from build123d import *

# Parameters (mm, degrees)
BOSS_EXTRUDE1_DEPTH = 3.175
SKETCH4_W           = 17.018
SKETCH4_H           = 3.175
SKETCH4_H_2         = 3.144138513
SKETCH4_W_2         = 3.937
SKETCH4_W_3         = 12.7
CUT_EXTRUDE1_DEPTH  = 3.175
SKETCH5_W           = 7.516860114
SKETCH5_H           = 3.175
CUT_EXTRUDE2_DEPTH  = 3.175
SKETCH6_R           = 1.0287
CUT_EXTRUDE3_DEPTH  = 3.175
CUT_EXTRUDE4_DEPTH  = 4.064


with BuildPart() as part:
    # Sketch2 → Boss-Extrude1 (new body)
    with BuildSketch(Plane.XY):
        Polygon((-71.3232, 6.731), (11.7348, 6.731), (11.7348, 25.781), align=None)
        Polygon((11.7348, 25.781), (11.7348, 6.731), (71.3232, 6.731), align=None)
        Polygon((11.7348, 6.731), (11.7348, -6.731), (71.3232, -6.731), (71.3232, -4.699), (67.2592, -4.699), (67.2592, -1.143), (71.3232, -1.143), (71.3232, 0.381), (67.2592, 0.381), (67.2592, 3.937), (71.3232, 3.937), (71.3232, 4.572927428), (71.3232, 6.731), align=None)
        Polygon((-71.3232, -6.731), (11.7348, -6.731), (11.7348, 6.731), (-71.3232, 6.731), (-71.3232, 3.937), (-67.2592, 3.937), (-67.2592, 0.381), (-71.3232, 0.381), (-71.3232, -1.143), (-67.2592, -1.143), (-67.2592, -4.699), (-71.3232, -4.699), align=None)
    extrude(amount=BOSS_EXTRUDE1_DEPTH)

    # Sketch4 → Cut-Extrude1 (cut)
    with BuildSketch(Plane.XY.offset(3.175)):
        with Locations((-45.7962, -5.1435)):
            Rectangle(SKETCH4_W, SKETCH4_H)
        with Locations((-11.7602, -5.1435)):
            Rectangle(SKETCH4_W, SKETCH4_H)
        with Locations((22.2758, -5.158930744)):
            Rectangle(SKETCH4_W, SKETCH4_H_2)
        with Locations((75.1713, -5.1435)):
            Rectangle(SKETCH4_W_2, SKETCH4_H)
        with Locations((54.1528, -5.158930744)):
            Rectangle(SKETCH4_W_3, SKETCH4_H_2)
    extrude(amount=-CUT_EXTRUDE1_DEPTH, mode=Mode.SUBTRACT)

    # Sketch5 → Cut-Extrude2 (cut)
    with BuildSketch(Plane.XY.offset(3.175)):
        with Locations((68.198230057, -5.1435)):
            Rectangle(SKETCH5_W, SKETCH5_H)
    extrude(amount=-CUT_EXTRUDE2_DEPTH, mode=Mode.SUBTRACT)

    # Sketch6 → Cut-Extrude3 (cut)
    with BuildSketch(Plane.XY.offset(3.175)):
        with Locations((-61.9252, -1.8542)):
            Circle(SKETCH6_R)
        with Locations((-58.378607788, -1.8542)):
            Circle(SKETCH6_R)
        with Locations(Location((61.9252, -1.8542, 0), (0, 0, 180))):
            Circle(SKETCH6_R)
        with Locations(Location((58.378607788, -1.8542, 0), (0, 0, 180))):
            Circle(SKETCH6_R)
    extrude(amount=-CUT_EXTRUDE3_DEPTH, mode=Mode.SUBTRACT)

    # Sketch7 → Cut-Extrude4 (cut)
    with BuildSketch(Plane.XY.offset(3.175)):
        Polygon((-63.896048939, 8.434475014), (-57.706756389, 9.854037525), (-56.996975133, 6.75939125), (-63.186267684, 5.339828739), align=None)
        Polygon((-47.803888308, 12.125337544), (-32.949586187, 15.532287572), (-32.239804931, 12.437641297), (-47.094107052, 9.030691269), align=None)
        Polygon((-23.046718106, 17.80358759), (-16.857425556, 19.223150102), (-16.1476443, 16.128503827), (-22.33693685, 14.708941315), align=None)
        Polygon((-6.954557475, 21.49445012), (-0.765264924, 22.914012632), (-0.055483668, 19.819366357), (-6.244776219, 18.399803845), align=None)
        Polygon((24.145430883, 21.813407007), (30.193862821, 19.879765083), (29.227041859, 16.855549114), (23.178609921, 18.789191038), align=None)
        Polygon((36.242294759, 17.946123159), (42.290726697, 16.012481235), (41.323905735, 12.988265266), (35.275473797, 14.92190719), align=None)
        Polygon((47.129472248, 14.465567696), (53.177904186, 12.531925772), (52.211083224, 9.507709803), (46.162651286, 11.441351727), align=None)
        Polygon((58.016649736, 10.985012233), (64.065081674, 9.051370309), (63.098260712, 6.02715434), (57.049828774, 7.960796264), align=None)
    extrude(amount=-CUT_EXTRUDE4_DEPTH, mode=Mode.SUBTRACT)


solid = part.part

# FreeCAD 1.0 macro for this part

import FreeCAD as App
import Part
import Sketcher
from FreeCAD import Vector
Q = App.Units.Quantity


def add_polygon(sketch, points):
    """Adds a closed chain of lines whose ends are joined by coincident constraints."""
    first, n = sketch.GeometryCount, len(points)
    for a, b in zip(points, points[1:] + points[:1]):
        sketch.addGeometry(Part.LineSegment(App.Vector(*a, 0), App.Vector(*b, 0)), False)
    for i in range(n):
        sketch.addConstraint(Sketcher.Constraint("Coincident", first + i, 2, first + (i + 1) % n, 1))

doc = App.newDocument("Part")
body = doc.addObject("PartDesign::Body", "Body")

sketch1 = body.newObject("Sketcher::SketchObject", "Sketch")
sketch1.AttachmentSupport = (doc.getObject("XY_Plane"), [""])
sketch1.MapMode = "FlatFace"
add_polygon(sketch1, [(71.3232, -6.731), (71.3232, -4.699), (67.2592, -4.699), (67.2592, -1.143), (71.3232, -1.143), (71.3232, 0.381), (67.2592, 0.381), (67.2592, 3.937), (71.3232, 3.937), (71.3232, 6.731), (11.7348, 25.781), (-71.3232, 6.731), (-71.3232, 3.937), (-67.2592, 3.937), (-67.2592, 0.381), (-71.3232, 0.381), (-71.3232, -1.143), (-67.2592, -1.143), (-67.2592, -4.699), (-71.3232, -4.699), (-71.3232, -6.731)])
sketch1.addConstraint([
    Sketcher.Constraint("Vertical", 0),
    Sketcher.Constraint("Horizontal", 1),
    Sketcher.Constraint("Vertical", 2),
    Sketcher.Constraint("Horizontal", 3),
    Sketcher.Constraint("Vertical", 4),
    Sketcher.Constraint("Horizontal", 5),
    Sketcher.Constraint("Vertical", 6),
    Sketcher.Constraint("Horizontal", 7),
    Sketcher.Constraint("Vertical", 8),
    Sketcher.Constraint("Vertical", 11),
    Sketcher.Constraint("Horizontal", 12),
    Sketcher.Constraint("Vertical", 13),
    Sketcher.Constraint("Horizontal", 14),
    Sketcher.Constraint("Vertical", 15),
    Sketcher.Constraint("Horizontal", 16),
    Sketcher.Constraint("Vertical", 17),
    Sketcher.Constraint("Horizontal", 18),
    Sketcher.Constraint("Vertical", 19),
    Sketcher.Constraint("Horizontal", 20),
    Sketcher.Constraint("Symmetric", 8, 2, 19, 2, -1, 1),
    Sketcher.Constraint("Symmetric", 10, 2, 20, 2, -1, 1),
    Sketcher.Constraint("Symmetric", 7, 2, 11, 2, -2),
    Sketcher.Constraint("Symmetric", 5, 2, 13, 2, -2),
    Sketcher.Constraint("Symmetric", 3, 2, 15, 2, -2),
    Sketcher.Constraint("Symmetric", 1, 2, 17, 2, -2),
    Sketcher.Constraint("Vertical", 0, 2, 3, 2),
    Sketcher.Constraint("Vertical", 2, 2, 5, 2),
    Sketcher.Constraint("Equal", 2, 6),
    Sketcher.Constraint("DistanceY", 5, 2, 9, 2, Q("1 in")),
    Sketcher.Constraint("DistanceX", 1, 2, 1, 1, Q("0.16 in")),
    Sketcher.Constraint("DistanceY", 0, 1, 0, 2, Q("0.08 in")),
    Sketcher.Constraint("DistanceY", 2, 1, 2, 2, Q("0.14 in")),
    Sketcher.Constraint("DistanceY", 4, 1, 4, 2, Q("0.06 in")),
    Sketcher.Constraint("DistanceY", 8, 1, 8, 2, Q("0.11 in")),
    Sketcher.Constraint("DistanceX", 20, 1, 20, 2, Q("5.616 in")),
    Sketcher.Constraint("DistanceX", 10, 2, 9, 2, Q("3.27 in")),
])
pad1 = body.newObject("PartDesign::Pad", "Pad")
pad1.Profile = sketch1
pad1.Length = Q("0.125 in")

sketch2 = body.newObject("Sketcher::SketchObject", "Sketch001")
sketch2.AttachmentSupport = (doc.getObject("XY_Plane"), [""])
sketch2.MapMode = "FlatFace"
sketch2.AttachmentOffset = App.Placement(Vector(0, 0, 0.125 * 25.4), App.Rotation())
add_polygon(sketch2, [(-54.3052, -3.556), (-54.3052, -6.731), (-37.2872, -6.731), (-37.2872, -3.556)])
add_polygon(sketch2, [(-20.2692, -3.556), (-20.2692, -6.731), (-3.2512, -6.731), (-3.2512, -3.556)])
add_polygon(sketch2, [(13.7668, -3.586861), (13.7668, -6.731), (30.7848, -6.731), (30.7848, -3.586861)])
add_polygon(sketch2, [(73.2028, -3.556), (73.2028, -6.731), (77.1398, -6.731), (77.1398, -3.556)])
add_polygon(sketch2, [(47.8028, -3.586861), (47.8028, -6.731), (60.5028, -6.731), (60.5028, -3.586861)])
sketch2.addConstraint([
    Sketcher.Constraint("Vertical", 0),
    Sketcher.Constraint("Horizontal", 1),
    Sketcher.Constraint("Vertical", 2),
    Sketcher.Constraint("Horizontal", 3),
    Sketcher.Constraint("Vertical", 4),
    Sketcher.Constraint("Horizontal", 5),
    Sketcher.Constraint("Vertical", 6),
    Sketcher.Constraint("Horizontal", 7),
    Sketcher.Constraint("Vertical", 8),
    Sketcher.Constraint("Horizontal", 9),
    Sketcher.Constraint("Vertical", 10),
    Sketcher.Constraint("Horizontal", 11),
    Sketcher.Constraint("Vertical", 12),
    Sketcher.Constraint("Horizontal", 13),
    Sketcher.Constraint("Vertical", 14),
    Sketcher.Constraint("Horizontal", 15),
    Sketcher.Constraint("Vertical", 16),
    Sketcher.Constraint("Horizontal", 17),
    Sketcher.Constraint("Vertical", 18),
    Sketcher.Constraint("Horizontal", 19),
    Sketcher.Constraint("Horizontal", 1, 2, 4, 2),
    Sketcher.Constraint("Horizontal", 3, 2, 6, 2),
    Sketcher.Constraint("Horizontal", 5, 2, 8, 2),
    Sketcher.Constraint("Horizontal", 9, 2, 12, 2),
    Sketcher.Constraint("Horizontal", 7, 2, 14, 2),
    Sketcher.Constraint("Horizontal", 13, 2, 16, 2),
    Sketcher.Constraint("Horizontal", 11, 2, 18, 2),
    Sketcher.Constraint("Equal", 3, 5),
    Sketcher.Constraint("Equal", 7, 9),
    Sketcher.Constraint("DistanceX", 17, 1, 17, 2, Q("0.5 in")),
    Sketcher.Constraint("DistanceX", 16, 2, 12, 2, Q("1 in")),
    Sketcher.Constraint("DistanceX", 1, 1, 1, 2, Q("0.67 in")),
    Sketcher.Constraint("DistanceX", 13, 1, 13, 2, Q("0.155 in")),
    Sketcher.Constraint("DistanceY", 0, 2, 0, 1, Q("0.125 in")),
    Sketcher.Constraint("DistanceY", 2, 2, -1, 1, Q("0.14 in")),
    Sketcher.Constraint("DistanceX", 1, 2, 4, 2, Q("0.67 in")),
    Sketcher.Constraint("DistanceX", 5, 2, 8, 2, Q("0.67 in")),
    Sketcher.Constraint("DistanceX", 9, 2, 12, 2, Q("1.67 in")),
    Sketcher.Constraint("DistanceX", 0, 2, -1, 1, Q("2.138 in")),
    Sketcher.Constraint("DistanceY", 8, 2, 8, 1, 3.144139),
])
pocket1 = body.newObject("PartDesign::Pocket", "Pocket")
pocket1.Profile = sketch2
pocket1.Length = Q("0.125 in")

sketch3 = body.newObject("Sketcher::SketchObject", "Sketch002")
sketch3.AttachmentSupport = (doc.getObject("XY_Plane"), [""])
sketch3.MapMode = "FlatFace"
sketch3.AttachmentOffset = App.Placement(Vector(0, 0, 0.125 * 25.4), App.Rotation())
add_polygon(sketch3, [(64.4398, -3.556), (64.4398, -6.731), (71.95666, -6.731), (71.95666, -3.556)])
sketch3.addConstraint([
    Sketcher.Constraint("Vertical", 0),
    Sketcher.Constraint("Horizontal", 1),
    Sketcher.Constraint("Vertical", 2),
    Sketcher.Constraint("Horizontal", 3),
    Sketcher.Constraint("DistanceY", 0, 2, 0, 1, Q("0.125 in")),
    Sketcher.Constraint("DistanceY", 2, 2, -1, 1, Q("0.14 in")),
    Sketcher.Constraint("DistanceX", -1, 1, 0, 2, Q("2.537 in")),
    Sketcher.Constraint("DistanceX", 1, 1, 1, 2, 7.51686),
])
pocket2 = body.newObject("PartDesign::Pocket", "Pocket001")
pocket2.Profile = sketch3
pocket2.Length = Q("0.125 in")

sketch4 = body.newObject("Sketcher::SketchObject", "Sketch003")
sketch4.AttachmentSupport = (doc.getObject("XY_Plane"), [""])
sketch4.MapMode = "FlatFace"
sketch4.AttachmentOffset = App.Placement(Vector(0, 0, 0.125 * 25.4), App.Rotation())
sketch4.addGeometry([
    Part.Circle(Vector(-61.9252, -1.8542, 0), Vector(0, 0, 1), 1.0287),
    Part.Circle(Vector(-58.378608, -1.8542, 0), Vector(0, 0, 1), 1.0287),
    Part.Circle(Vector(61.9252, -1.8542, 0), Vector(0, 0, 1), 1.0287),
    Part.Circle(Vector(58.378608, -1.8542, 0), Vector(0, 0, 1), 1.0287),
], False)
sketch4.addConstraint([
    Sketcher.Constraint("Equal", 0, 1),
    Sketcher.Constraint("Equal", 1, 2),
    Sketcher.Constraint("Equal", 2, 3),
    Sketcher.Constraint("Symmetric", 0, 3, 2, 3, -2),
    Sketcher.Constraint("Symmetric", 1, 3, 3, 3, -2),
    Sketcher.Constraint("Horizontal", 0, 3, 1, 3),
    Sketcher.Constraint("Diameter", 0, Q("0.081 in")),
    Sketcher.Constraint("DistanceX", 0, 3, -1, 1, Q("2.438 in")),
    Sketcher.Constraint("DistanceY", 0, 3, -1, 1, Q("0.073 in")),
    Sketcher.Constraint("DistanceX", 1, 3, -1, 1, 58.378608),
])
pocket3 = body.newObject("PartDesign::Pocket", "Pocket002")
pocket3.Profile = sketch4
pocket3.Length = Q("0.125 in")

sketch5 = body.newObject("Sketcher::SketchObject", "Sketch004")
sketch5.AttachmentSupport = (doc.getObject("XY_Plane"), [""])
sketch5.MapMode = "FlatFace"
sketch5.AttachmentOffset = App.Placement(Vector(0, 0, 0.125 * 25.4), App.Rotation())
add_polygon(sketch5, [(-57.706756, 9.854038), (-63.896049, 8.434475), (-63.186268, 5.339829), (-56.996975, 6.759391)])
add_polygon(sketch5, [(-32.949586, 15.532288), (-47.803888, 12.125338), (-47.094107, 9.030691), (-32.239805, 12.437641)])
add_polygon(sketch5, [(-16.857426, 19.22315), (-23.046718, 17.803588), (-22.336937, 14.708941), (-16.147644, 16.128504)])
add_polygon(sketch5, [(-0.765265, 22.914013), (-6.954557, 21.49445), (-6.244776, 18.399804), (-0.055484, 19.819366)])
add_polygon(sketch5, [(30.193863, 19.879765), (24.145431, 21.813407), (23.17861, 18.789191), (29.227042, 16.855549)])
add_polygon(sketch5, [(42.290727, 16.012481), (36.242295, 17.946123), (35.275474, 14.921907), (41.323906, 12.988265)])
add_polygon(sketch5, [(53.177904, 12.531926), (47.129472, 14.465568), (46.162651, 11.441352), (52.211083, 9.50771)])
add_polygon(sketch5, [(64.065082, 9.05137), (58.01665, 10.985012), (57.049829, 7.960796), (63.098261, 6.027154)])
sketch5.addConstraint([
    Sketcher.Constraint("Perpendicular", 0, 1),
    Sketcher.Constraint("Perpendicular", 1, 2),
    Sketcher.Constraint("Perpendicular", 2, 3),
    Sketcher.Constraint("Perpendicular", 3, 4),
    Sketcher.Constraint("Perpendicular", 4, 5),
    Sketcher.Constraint("Perpendicular", 5, 6),
    Sketcher.Constraint("Perpendicular", 6, 7),
    Sketcher.Constraint("Perpendicular", 7, 8),
    Sketcher.Constraint("Perpendicular", 8, 9),
    Sketcher.Constraint("Perpendicular", 9, 10),
    Sketcher.Constraint("Perpendicular", 10, 11),
    Sketcher.Constraint("Perpendicular", 11, 12),
    Sketcher.Constraint("Perpendicular", 12, 13),
    Sketcher.Constraint("Perpendicular", 13, 14),
    Sketcher.Constraint("Perpendicular", 14, 15),
    Sketcher.Constraint("Perpendicular", 16, 17),
    Sketcher.Constraint("Perpendicular", 17, 18),
    Sketcher.Constraint("Perpendicular", 18, 19),
    Sketcher.Constraint("Perpendicular", 19, 20),
    Sketcher.Constraint("Perpendicular", 20, 21),
    Sketcher.Constraint("Perpendicular", 21, 22),
    Sketcher.Constraint("Perpendicular", 22, 23),
    Sketcher.Constraint("Perpendicular", 23, 24),
    Sketcher.Constraint("Perpendicular", 24, 25),
    Sketcher.Constraint("Perpendicular", 25, 26),
    Sketcher.Constraint("Perpendicular", 26, 27),
    Sketcher.Constraint("Perpendicular", 27, 28),
    Sketcher.Constraint("Perpendicular", 28, 29),
    Sketcher.Constraint("Perpendicular", 29, 30),
    Sketcher.Constraint("Perpendicular", 30, 31),
    Sketcher.Constraint("Equal", 3, 5),
    Sketcher.Constraint("Equal", 2, 8),
    Sketcher.Constraint("Equal", 7, 9),
    Sketcher.Constraint("Equal", 10, 12),
    Sketcher.Constraint("Equal", 11, 13),
    Sketcher.Constraint("Equal", 14, 16),
    Sketcher.Constraint("Equal", 15, 17),
    Sketcher.Constraint("Equal", 18, 20),
    Sketcher.Constraint("Equal", 19, 21),
    Sketcher.Constraint("Equal", 22, 24),
    Sketcher.Constraint("Equal", 23, 25),
    Sketcher.Constraint("Equal", 26, 28),
    Sketcher.Constraint("Equal", 27, 29),
    Sketcher.Constraint("Distance", 4, Q("0.6 in")),
    Sketcher.Constraint("Distance", 0, Q("0.25 in")),
    Sketcher.Constraint("Distance", 1, Q("0.125 in")),
    Sketcher.Constraint("DistanceY", 3, 2, 4, 2, 2.2713),
    Sketcher.Constraint("DistanceY", 7, 2, 8, 2, 2.2713),
    Sketcher.Constraint("DistanceY", 11, 2, 12, 2, 2.2713),
    Sketcher.Constraint("DistanceY", 14, 2, 19, 2, 0.060399),
    Sketcher.Constraint("DistanceY", 21, 2, 16, 2, 6.8915),
    Sketcher.Constraint("DistanceX", 21, 2, 24, 2, 11.853998),
    Sketcher.Constraint("DistanceX", 25, 2, 28, 2, 11.853998),
    Sketcher.Constraint("DistanceX", 0, 2, -1, 1, 63.896049),
    Sketcher.Constraint("DistanceY", -1, 1, 1, 2, 5.339829),
    Sketcher.Constraint("DistanceY", -1, 1, 2, 2, 6.759391),
    Sketcher.Constraint("DistanceX", 4, 2, -1, 1, 47.803888),
    Sketcher.Constraint("DistanceX", 8, 2, -1, 1, 23.046718),
    Sketcher.Constraint("DistanceX", -1, 1, 16, 2, 24.145431),
    Sketcher.Constraint("DistanceX", -1, 1, 17, 2, 23.17861),
    Sketcher.Constraint("DistanceX", -1, 1, 25, 2, 46.162651),
    Sketcher.Constraint("DistanceY", -1, 1, 25, 2, 11.441352),
    Sketcher.Constraint("DistanceY", -1, 1, 31, 2, 9.05137),
    Sketcher.Constraint("DistanceX", 11, 2, 12, 2, 9.902868),
])
pocket4 = body.newObject("PartDesign::Pocket", "Pocket003")
pocket4.Profile = sketch5
pocket4.Length = Q("0.16 in")

doc.recompute()
